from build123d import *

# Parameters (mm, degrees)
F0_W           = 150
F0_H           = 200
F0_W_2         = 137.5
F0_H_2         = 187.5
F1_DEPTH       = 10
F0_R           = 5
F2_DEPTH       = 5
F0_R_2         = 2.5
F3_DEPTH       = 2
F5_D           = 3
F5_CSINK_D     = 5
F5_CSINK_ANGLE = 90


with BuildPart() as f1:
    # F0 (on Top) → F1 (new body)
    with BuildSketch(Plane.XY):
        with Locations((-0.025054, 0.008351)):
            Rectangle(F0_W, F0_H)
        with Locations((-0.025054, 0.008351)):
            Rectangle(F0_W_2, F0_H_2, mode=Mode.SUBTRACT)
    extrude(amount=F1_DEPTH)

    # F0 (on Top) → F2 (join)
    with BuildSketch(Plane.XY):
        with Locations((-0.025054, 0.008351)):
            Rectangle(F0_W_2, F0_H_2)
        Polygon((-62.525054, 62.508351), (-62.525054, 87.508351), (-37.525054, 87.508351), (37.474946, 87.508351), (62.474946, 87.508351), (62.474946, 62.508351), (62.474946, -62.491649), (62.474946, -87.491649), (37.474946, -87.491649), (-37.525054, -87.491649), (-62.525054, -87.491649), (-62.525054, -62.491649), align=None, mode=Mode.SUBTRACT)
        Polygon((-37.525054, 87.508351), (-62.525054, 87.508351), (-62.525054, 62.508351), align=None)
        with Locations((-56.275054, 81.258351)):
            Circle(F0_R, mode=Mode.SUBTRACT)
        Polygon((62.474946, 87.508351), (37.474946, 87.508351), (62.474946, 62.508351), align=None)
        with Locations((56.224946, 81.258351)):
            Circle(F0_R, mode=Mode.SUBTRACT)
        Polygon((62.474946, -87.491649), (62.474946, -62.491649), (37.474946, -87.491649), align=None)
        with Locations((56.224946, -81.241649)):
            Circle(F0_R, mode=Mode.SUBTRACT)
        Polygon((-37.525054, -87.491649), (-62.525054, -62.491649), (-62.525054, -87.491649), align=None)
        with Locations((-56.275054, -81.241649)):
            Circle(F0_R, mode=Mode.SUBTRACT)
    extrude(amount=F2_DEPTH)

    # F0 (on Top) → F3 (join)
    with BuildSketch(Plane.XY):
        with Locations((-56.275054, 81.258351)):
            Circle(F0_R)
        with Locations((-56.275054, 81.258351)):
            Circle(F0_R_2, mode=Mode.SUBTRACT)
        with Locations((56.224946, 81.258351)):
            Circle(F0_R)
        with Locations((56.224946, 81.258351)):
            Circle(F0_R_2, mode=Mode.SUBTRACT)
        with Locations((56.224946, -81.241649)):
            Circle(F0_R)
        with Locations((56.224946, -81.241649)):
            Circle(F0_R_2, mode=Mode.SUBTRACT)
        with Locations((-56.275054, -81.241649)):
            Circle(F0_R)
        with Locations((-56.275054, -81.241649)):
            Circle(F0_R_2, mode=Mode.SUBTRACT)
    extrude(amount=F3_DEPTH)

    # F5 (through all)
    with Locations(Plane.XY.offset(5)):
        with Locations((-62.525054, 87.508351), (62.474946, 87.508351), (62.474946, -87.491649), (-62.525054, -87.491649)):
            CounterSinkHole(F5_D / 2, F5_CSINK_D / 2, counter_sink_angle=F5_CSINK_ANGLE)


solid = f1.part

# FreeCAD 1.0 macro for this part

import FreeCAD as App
import Part
import Sketcher
from FreeCAD import Vector

doc = App.newDocument("Part")
body = doc.addObject("PartDesign::Body", "Body")

sketch1 = body.newObject("Sketcher::SketchObject", "Sketch")
sketch1.AttachmentSupport = (doc.getObject("XY_Plane"), [""])
sketch1.MapMode = "FlatFace"
sketch1.addGeometry([
    Part.LineSegment(Vector(-75, 100, 0), Vector(-75, -100, 0)),
    Part.LineSegment(Vector(-75, -100, 0), Vector(75, -100, 0)),
    Part.LineSegment(Vector(75, -100, 0), Vector(75, 100, 0)),
    Part.LineSegment(Vector(75, 100, 0), Vector(-75, 100, 0)),
    Part.LineSegment(Vector(69, -94, 0), Vector(-69, -94, 0)),
    Part.LineSegment(Vector(-69, -94, 0), Vector(-69, 94, 0)),
    Part.LineSegment(Vector(-69, 94, 0), Vector(69, 94, 0)),
    Part.LineSegment(Vector(69, 94, 0), Vector(69, -94, 0)),
], False)
sketch1.addConstraint([
    Sketcher.Constraint("Coincident", 0, 2, 1, 1),
    Sketcher.Constraint("Coincident", 1, 2, 2, 1),
    Sketcher.Constraint("Coincident", 2, 2, 3, 1),
    Sketcher.Constraint("Coincident", 3, 2, 0, 1),
    Sketcher.Constraint("Coincident", 4, 2, 5, 1),
    Sketcher.Constraint("Coincident", 5, 2, 6, 1),
    Sketcher.Constraint("Coincident", 6, 2, 7, 1),
    Sketcher.Constraint("Coincident", 7, 2, 4, 1),
    Sketcher.Constraint("Vertical", 0),
    Sketcher.Constraint("Horizontal", 1),
    Sketcher.Constraint("Vertical", 2),
    Sketcher.Constraint("Horizontal", 3),
    Sketcher.Constraint("Horizontal", 4),
    Sketcher.Constraint("Vertical", 5),
    Sketcher.Constraint("Horizontal", 6),
    Sketcher.Constraint("Vertical", 7),
    Sketcher.Constraint("DistanceX", 1, 1, 1, 2, 150.0),
    Sketcher.Constraint("DistanceY", 0, 2, 0, 1, 200.0),
    Sketcher.Constraint("DistanceX", 4, 2, 4, 1, 137.5),
    Sketcher.Constraint("DistanceY", 5, 1, 5, 2, 187.5),
    Sketcher.Constraint("DistanceX", 0, 2, 4, 2, 6.25),
    Sketcher.Constraint("DistanceY", 0, 2, 4, 2, 6.25),
    Sketcher.Constraint("DistanceY", 0, 2, -1, 1, 99.991649),
    Sketcher.Constraint("DistanceX", 0, 2, -1, 1, 75.025054),
])
pad1 = body.newObject("PartDesign::Pad", "Pad")
pad1.Profile = sketch1
pad1.Length = 10

sketch2 = body.newObject("Sketcher::SketchObject", "Sketch001")
sketch2.AttachmentSupport = (doc.getObject("XY_Plane"), [""])
sketch2.MapMode = "FlatFace"
sketch2.addGeometry([
    Part.LineSegment(Vector(-69, 94, 0), Vector(-69, -94, 0)),
    Part.LineSegment(Vector(-69, -94, 0), Vector(69, -94, 0)),
    Part.LineSegment(Vector(69, -94, 0), Vector(69, 94, 0)),
    Part.LineSegment(Vector(69, 94, 0), Vector(-69, 94, 0)),
    Part.Circle(Vector(-56, -81, 0), Vector(0, 0, 1), 5),
    Part.Circle(Vector(56, -81, 0), Vector(0, 0, 1), 5),
    Part.Circle(Vector(-56, 81, 0), Vector(0, 0, 1), 5),
    Part.LineSegment(Vector(-63, -62, 0), Vector(-63, 63, 0)),
    Part.LineSegment(Vector(-63, 63, 0), Vector(-38, 88, 0)),
    Part.LineSegment(Vector(-38, 88, 0), Vector(37, 88, 0)),
    Part.LineSegment(Vector(37, 88, 0), Vector(62, 63, 0)),
    Part.LineSegment(Vector(62, 63, 0), Vector(62, -62, 0)),
    Part.LineSegment(Vector(62, -62, 0), Vector(37, -87, 0)),
    Part.LineSegment(Vector(37, -87, 0), Vector(-38, -87, 0)),
    Part.LineSegment(Vector(-38, -87, 0), Vector(-63, -62, 0)),
    Part.Circle(Vector(56, 81, 0), Vector(0, 0, 1), 5),
], False)
sketch2.addConstraint([
    Sketcher.Constraint("Coincident", 0, 2, 1, 1),
    Sketcher.Constraint("Coincident", 1, 2, 2, 1),
    Sketcher.Constraint("Coincident", 2, 2, 3, 1),
    Sketcher.Constraint("Coincident", 3, 2, 0, 1),
    Sketcher.Constraint("Coincident", 7, 2, 8, 1),
    Sketcher.Constraint("Coincident", 8, 2, 9, 1),
    Sketcher.Constraint("Coincident", 9, 2, 10, 1),
    Sketcher.Constraint("Coincident", 10, 2, 11, 1),
    Sketcher.Constraint("Coincident", 11, 2, 12, 1),
    Sketcher.Constraint("Coincident", 12, 2, 13, 1),
    Sketcher.Constraint("Coincident", 13, 2, 14, 1),
    Sketcher.Constraint("Coincident", 14, 2, 7, 1),
    Sketcher.Constraint("Vertical", 0),
    Sketcher.Constraint("Horizontal", 1),
    Sketcher.Constraint("Vertical", 2),
    Sketcher.Constraint("Horizontal", 3),
    Sketcher.Constraint("Vertical", 7),
    Sketcher.Constraint("Horizontal", 9),
    Sketcher.Constraint("Vertical", 11),
    Sketcher.Constraint("Horizontal", 13),
    Sketcher.Constraint("Equal", 4, 5),
    Sketcher.Constraint("Equal", 5, 6),
    Sketcher.Constraint("Equal", 6, 15),
    Sketcher.Constraint("Perpendicular", 8, 10),
    Sketcher.Constraint("Perpendicular", 10, 12),
    Sketcher.Constraint("Perpendicular", 12, 14),
    Sketcher.Constraint("Horizontal", 4, 3, 5, 3),
    Sketcher.Constraint("Horizontal", 6, 3, 15, 3),
    Sketcher.Constraint("Horizontal", 7, 2, 10, 2),
    Sketcher.Constraint("Horizontal", 11, 2, 14, 2),
    Sketcher.Constraint("Vertical", 4, 3, 6, 3),
    Sketcher.Constraint("Vertical", 5, 3, 15, 3),
    Sketcher.Constraint("Vertical", 9, 2, 12, 2),
    Sketcher.Constraint("Vertical", 8, 2, 13, 2),
    Sketcher.Constraint("Diameter", 4, 10.0),
    Sketcher.Constraint("DistanceX", 9, 1, 9, 2, 75.0),
    Sketcher.Constraint("DistanceY", 7, 1, 7, 2, 125.0),
    Sketcher.Constraint("DistanceX", 1, 1, 1, 2, 137.5),
    Sketcher.Constraint("DistanceY", 0, 2, 0, 1, 187.5),
    Sketcher.Constraint("DistanceX", 0, 2, 5, 3, 125.0),
    Sketcher.Constraint("DistanceY", 0, 2, 6, 3, 175.0),
    Sketcher.Constraint("DistanceX", 4, 3, 1, 2, 125.0),
    Sketcher.Constraint("DistanceY", 5, 3, 2, 2, 175.0),
    Sketcher.Constraint("DistanceX", 7, 2, 8, 2, 25.0),
    Sketcher.Constraint("DistanceX", 7, 2, 6, 3, 6.25),
    Sketcher.Constraint("DistanceY", 7, 2, 6, 3, 18.75),
    Sketcher.Constraint("DistanceY", 4, 3, -1, 1, 81.241649),
    Sketcher.Constraint("DistanceX", 4, 3, -1, 1, 56.275054),
])
pad2 = body.newObject("PartDesign::Pad", "Pad001")
pad2.Profile = sketch2
pad2.Length = 5

sketch3 = body.newObject("Sketcher::SketchObject", "Sketch002")
sketch3.AttachmentSupport = (doc.getObject("XY_Plane"), [""])
sketch3.MapMode = "FlatFace"
sketch3.addGeometry([
    Part.Circle(Vector(-56.3, 81.3, 0), Vector(0, 0, 1), 5),
    Part.Circle(Vector(-56.3, 81.3, 0), Vector(0, 0, 1), 2.5),
    Part.Circle(Vector(56.2, 81.3, 0), Vector(0, 0, 1), 5),
    Part.Circle(Vector(56.2, 81.3, 0), Vector(0, 0, 1), 2.5),
    Part.Circle(Vector(56.2, -81.2, 0), Vector(0, 0, 1), 5),
    Part.Circle(Vector(56.2, -81.2, 0), Vector(0, 0, 1), 2.5),
    Part.Circle(Vector(-56.3, -81.2, 0), Vector(0, 0, 1), 5),
    Part.Circle(Vector(-56.3, -81.2, 0), Vector(0, 0, 1), 2.5),
], False)
sketch3.addConstraint([
    Sketcher.Constraint("Coincident", 1, 3, 0, 3),
    Sketcher.Constraint("Coincident", 3, 3, 2, 3),
    Sketcher.Constraint("Coincident", 5, 3, 4, 3),
    Sketcher.Constraint("Coincident", 7, 3, 6, 3),
    Sketcher.Constraint("Equal", 0, 2),
    Sketcher.Constraint("Equal", 1, 3),
    Sketcher.Constraint("Equal", 2, 4),
    Sketcher.Constraint("Equal", 3, 5),
    Sketcher.Constraint("Equal", 4, 6),
    Sketcher.Constraint("Equal", 5, 7),
    Sketcher.Constraint("Horizontal", 1, 3, 2, 3),
    Sketcher.Constraint("Horizontal", 5, 3, 6, 3),
    Sketcher.Constraint("Vertical", 3, 3, 4, 3),
    Sketcher.Constraint("Vertical", 1, 3, 6, 3),
    Sketcher.Constraint("Diameter", 0, 10.0),
    Sketcher.Constraint("Diameter", 1, 5.0),
    Sketcher.Constraint("DistanceX", 0, 3, 2, 3, 112.5),
    Sketcher.Constraint("DistanceY", 4, 3, 2, 3, 162.5),
    Sketcher.Constraint("DistanceY", -1, 1, 0, 3, 81.258351),
    Sketcher.Constraint("DistanceX", 0, 3, -1, 1, 56.275054),
])
pad3 = body.newObject("PartDesign::Pad", "Pad002")
pad3.Profile = sketch3
pad3.Length = 2

sketch4 = body.newObject("Sketcher::SketchObject", "Sketch003")
sketch4.AttachmentSupport = (doc.getObject("XY_Plane"), [""])
sketch4.MapMode = "FlatFace"
sketch4.AttachmentOffset = App.Placement(Vector(0, 0, 5), App.Rotation())
sketch4.addGeometry([
    Part.Circle(Vector(-62.5, 87.5, 0), Vector(0, 0, 1), 1.5),
    Part.Circle(Vector(62.5, 87.5, 0), Vector(0, 0, 1), 1.5),
    Part.Circle(Vector(62.5, -87.5, 0), Vector(0, 0, 1), 1.5),
    Part.Circle(Vector(-62.5, -87.5, 0), Vector(0, 0, 1), 1.5),
], False)
sketch4.addConstraint([
    Sketcher.Constraint("Equal", 0, 1),
    Sketcher.Constraint("Equal", 1, 2),
    Sketcher.Constraint("Equal", 2, 3),
    Sketcher.Constraint("Horizontal", 0, 3, 1, 3),
    Sketcher.Constraint("Horizontal", 2, 3, 3, 3),
    Sketcher.Constraint("Vertical", 1, 3, 2, 3),
    Sketcher.Constraint("Vertical", 0, 3, 3, 3),
    Sketcher.Constraint("Diameter", 0, 3.0),
    Sketcher.Constraint("DistanceX", 0, 3, 1, 3, 125.0),
    Sketcher.Constraint("DistanceY", 2, 3, 1, 3, 175.0),
    Sketcher.Constraint("DistanceY", -1, 1, 0, 3, 87.508351),
    Sketcher.Constraint("DistanceX", 0, 3, -1, 1, 62.525054),
])
doc.recompute()
hole = body.newObject("PartDesign::Hole", "Hole")
hole.Profile = sketch4
hole.ThreadType = "None"
hole.Diameter = 3
hole.DepthType = "ThroughAll"
hole.HoleCutType = "Countersink"
hole.HoleCutDiameter = 5
hole.HoleCutCountersinkAngle = 90

doc.recompute()
